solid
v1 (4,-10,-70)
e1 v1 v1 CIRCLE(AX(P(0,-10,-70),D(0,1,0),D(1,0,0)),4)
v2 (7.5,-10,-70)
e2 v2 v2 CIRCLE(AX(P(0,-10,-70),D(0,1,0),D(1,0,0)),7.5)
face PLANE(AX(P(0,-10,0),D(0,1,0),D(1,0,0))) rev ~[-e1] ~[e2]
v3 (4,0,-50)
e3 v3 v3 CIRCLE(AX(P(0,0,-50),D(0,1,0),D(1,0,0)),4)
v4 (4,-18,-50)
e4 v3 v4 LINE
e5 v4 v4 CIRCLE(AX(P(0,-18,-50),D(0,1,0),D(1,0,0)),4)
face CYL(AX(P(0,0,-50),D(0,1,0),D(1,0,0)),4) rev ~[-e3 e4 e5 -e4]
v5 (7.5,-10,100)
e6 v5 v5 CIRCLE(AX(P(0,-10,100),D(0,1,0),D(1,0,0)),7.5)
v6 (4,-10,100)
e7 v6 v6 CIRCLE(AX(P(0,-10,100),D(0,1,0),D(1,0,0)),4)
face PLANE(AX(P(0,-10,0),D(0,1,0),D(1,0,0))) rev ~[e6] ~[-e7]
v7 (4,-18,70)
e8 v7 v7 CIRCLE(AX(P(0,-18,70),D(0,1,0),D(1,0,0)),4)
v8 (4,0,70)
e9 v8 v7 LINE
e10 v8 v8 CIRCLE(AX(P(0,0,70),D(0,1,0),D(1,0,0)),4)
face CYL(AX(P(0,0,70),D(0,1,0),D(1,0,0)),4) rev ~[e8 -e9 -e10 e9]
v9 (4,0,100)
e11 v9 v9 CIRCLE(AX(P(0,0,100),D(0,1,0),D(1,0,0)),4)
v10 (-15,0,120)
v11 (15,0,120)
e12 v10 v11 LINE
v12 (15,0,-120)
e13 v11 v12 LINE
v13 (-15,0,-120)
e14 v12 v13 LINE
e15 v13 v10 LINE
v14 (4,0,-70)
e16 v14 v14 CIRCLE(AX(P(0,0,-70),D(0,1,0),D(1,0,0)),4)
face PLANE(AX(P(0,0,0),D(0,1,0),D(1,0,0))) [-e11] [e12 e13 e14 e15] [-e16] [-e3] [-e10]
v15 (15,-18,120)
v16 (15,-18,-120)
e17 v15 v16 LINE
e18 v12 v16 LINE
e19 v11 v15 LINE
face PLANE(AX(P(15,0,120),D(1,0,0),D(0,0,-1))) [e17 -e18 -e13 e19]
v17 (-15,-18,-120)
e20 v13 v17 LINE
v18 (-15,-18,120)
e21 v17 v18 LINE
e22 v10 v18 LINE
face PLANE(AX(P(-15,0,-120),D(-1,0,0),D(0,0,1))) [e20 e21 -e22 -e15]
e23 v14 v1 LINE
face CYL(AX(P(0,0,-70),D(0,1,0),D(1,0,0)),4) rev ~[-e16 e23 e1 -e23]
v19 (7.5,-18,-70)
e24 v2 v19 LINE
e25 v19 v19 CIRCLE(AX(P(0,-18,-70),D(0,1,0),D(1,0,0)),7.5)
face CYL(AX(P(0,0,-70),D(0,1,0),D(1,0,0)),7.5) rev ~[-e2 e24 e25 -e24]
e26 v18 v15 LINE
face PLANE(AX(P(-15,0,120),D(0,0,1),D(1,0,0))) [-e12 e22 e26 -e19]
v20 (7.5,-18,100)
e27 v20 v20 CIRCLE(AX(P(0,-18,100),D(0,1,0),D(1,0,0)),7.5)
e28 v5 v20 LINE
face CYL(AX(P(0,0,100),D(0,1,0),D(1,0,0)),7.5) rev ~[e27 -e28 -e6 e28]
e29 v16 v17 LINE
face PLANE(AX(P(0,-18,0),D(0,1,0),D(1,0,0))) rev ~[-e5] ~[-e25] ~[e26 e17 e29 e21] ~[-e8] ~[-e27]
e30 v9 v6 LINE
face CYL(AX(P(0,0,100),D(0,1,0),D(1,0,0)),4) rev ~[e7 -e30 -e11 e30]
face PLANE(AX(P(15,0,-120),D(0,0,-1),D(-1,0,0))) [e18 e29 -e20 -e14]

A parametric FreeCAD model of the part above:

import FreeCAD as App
import Part
import Sketcher
from FreeCAD import Vector


def add_polygon(sketch, points):
    """Adds a closed chain of lines whose ends are joined by coincident constraints."""
    first, n = sketch.GeometryCount, len(points)
    for a, b in zip(points, points[1:] + points[:1]):
        sketch.addGeometry(Part.LineSegment(App.Vector(*a, 0), App.Vector(*b, 0)), False)
    for i in range(n):
        sketch.addConstraint(Sketcher.Constraint("Coincident", first + i, 2, first + (i + 1) % n, 1))

doc = App.newDocument("Part")
body = doc.addObject("PartDesign::Body", "Body")
body.AllowCompound = True

# Sketch on XZ plane
sketch1 = doc.addObject("Sketcher::SketchObject", "Sketch")
body.addObject(sketch1)
sketch1.AttachmentSupport = (doc.XZ_Plane, [""])
sketch1.MapMode = "FlatFace"
sketch1.addGeometry([
    Part.Circle(Vector(0, 100, 0), Vector(0, 0, 1), 7.5),
    Part.Circle(Vector(0, 100, 0), Vector(0, 0, 1), 4),
    Part.Circle(Vector(0, -70, 0), Vector(0, 0, 1), 7.5),
    Part.Circle(Vector(0, -70, 0), Vector(0, 0, 1), 4),
], False)
sketch1.addConstraint([
    Sketcher.Constraint("Coincident", 1, 3, 0, 3),
    Sketcher.Constraint("Coincident", 3, 3, 2, 3),
    Sketcher.Constraint("Equal", 0, 2),
    Sketcher.Constraint("Equal", 1, 3),
    Sketcher.Constraint("PointOnObject", 0, 3, -2),
    Sketcher.Constraint("PointOnObject", 2, 3, -2),
    Sketcher.Constraint("Diameter", 0, 15.0),
    Sketcher.Constraint("Diameter", 1, 8.0),
    Sketcher.Constraint("DistanceY", -1, 1, 0, 3, 100.0),
    Sketcher.Constraint("DistanceY", 2, 3, -1, 1, 70.0),
])
pad1 = doc.addObject("PartDesign::Pad", "Pad")
body.addObject(pad1)
pad1.Profile = sketch1
pad1.Length = 10

# Sketch on XZ plane
sketch2 = doc.addObject("Sketcher::SketchObject", "Sketch001")
body.addObject(sketch2)
sketch2.AttachmentSupport = (doc.XZ_Plane, [""])
sketch2.MapMode = "FlatFace"
add_polygon(sketch2, [(-15, -120), (-15, 120), (15, 120), (15, -120)])  # lines 0-3
sketch2.addGeometry(Part.Circle(Vector(0, 100, 0), Vector(0, 0, 1), 7.5), False)  # 4
sketch2.addGeometry(Part.Circle(Vector(0, 70, 0), Vector(0, 0, 1), 4), False)  # 5
sketch2.addGeometry(Part.Circle(Vector(0, -50, 0), Vector(0, 0, 1), 4), False)  # 6
sketch2.addGeometry(Part.Circle(Vector(0, -70, 0), Vector(0, 0, 1), 7.5), False)  # 7
sketch2.addConstraint([
    Sketcher.Constraint("Vertical", 0),
    Sketcher.Constraint("Horizontal", 1),
    Sketcher.Constraint("Vertical", 2),
    Sketcher.Constraint("Horizontal", 3),
    Sketcher.Constraint("Equal", 5, 6),
    Sketcher.Constraint("Equal", 4, 7),
    Sketcher.Constraint("Symmetric", 5, 3, 7, 3, -1, 1),
    Sketcher.Constraint("Symmetric", 0, 2, 2, 2, -1, 1),
    Sketcher.Constraint("PointOnObject", 4, 3, -2),
    Sketcher.Constraint("PointOnObject", 5, 3, -2),
    Sketcher.Constraint("PointOnObject", 6, 3, -2),
    Sketcher.Constraint("Diameter", 4, 15.0),
    Sketcher.Constraint("Diameter", 5, 8.0),
    Sketcher.Constraint("DistanceX", 1, 1, 1, 2, 30.0),
    Sketcher.Constraint("DistanceY", 0, 1, 0, 2, 240.0),
    Sketcher.Constraint("DistanceY", 6, 3, -1, 1, 50.0),
    Sketcher.Constraint("DistanceY", 5, 3, 4, 3, 30.0),
    Sketcher.Constraint("DistanceY", 7, 3, 6, 3, 20.0),
])
pad2 = doc.addObject("PartDesign::Pad", "Pad001")
body.addObject(pad2)
pad2.Profile = sketch2
pad2.Length = 18

doc.recompute()
